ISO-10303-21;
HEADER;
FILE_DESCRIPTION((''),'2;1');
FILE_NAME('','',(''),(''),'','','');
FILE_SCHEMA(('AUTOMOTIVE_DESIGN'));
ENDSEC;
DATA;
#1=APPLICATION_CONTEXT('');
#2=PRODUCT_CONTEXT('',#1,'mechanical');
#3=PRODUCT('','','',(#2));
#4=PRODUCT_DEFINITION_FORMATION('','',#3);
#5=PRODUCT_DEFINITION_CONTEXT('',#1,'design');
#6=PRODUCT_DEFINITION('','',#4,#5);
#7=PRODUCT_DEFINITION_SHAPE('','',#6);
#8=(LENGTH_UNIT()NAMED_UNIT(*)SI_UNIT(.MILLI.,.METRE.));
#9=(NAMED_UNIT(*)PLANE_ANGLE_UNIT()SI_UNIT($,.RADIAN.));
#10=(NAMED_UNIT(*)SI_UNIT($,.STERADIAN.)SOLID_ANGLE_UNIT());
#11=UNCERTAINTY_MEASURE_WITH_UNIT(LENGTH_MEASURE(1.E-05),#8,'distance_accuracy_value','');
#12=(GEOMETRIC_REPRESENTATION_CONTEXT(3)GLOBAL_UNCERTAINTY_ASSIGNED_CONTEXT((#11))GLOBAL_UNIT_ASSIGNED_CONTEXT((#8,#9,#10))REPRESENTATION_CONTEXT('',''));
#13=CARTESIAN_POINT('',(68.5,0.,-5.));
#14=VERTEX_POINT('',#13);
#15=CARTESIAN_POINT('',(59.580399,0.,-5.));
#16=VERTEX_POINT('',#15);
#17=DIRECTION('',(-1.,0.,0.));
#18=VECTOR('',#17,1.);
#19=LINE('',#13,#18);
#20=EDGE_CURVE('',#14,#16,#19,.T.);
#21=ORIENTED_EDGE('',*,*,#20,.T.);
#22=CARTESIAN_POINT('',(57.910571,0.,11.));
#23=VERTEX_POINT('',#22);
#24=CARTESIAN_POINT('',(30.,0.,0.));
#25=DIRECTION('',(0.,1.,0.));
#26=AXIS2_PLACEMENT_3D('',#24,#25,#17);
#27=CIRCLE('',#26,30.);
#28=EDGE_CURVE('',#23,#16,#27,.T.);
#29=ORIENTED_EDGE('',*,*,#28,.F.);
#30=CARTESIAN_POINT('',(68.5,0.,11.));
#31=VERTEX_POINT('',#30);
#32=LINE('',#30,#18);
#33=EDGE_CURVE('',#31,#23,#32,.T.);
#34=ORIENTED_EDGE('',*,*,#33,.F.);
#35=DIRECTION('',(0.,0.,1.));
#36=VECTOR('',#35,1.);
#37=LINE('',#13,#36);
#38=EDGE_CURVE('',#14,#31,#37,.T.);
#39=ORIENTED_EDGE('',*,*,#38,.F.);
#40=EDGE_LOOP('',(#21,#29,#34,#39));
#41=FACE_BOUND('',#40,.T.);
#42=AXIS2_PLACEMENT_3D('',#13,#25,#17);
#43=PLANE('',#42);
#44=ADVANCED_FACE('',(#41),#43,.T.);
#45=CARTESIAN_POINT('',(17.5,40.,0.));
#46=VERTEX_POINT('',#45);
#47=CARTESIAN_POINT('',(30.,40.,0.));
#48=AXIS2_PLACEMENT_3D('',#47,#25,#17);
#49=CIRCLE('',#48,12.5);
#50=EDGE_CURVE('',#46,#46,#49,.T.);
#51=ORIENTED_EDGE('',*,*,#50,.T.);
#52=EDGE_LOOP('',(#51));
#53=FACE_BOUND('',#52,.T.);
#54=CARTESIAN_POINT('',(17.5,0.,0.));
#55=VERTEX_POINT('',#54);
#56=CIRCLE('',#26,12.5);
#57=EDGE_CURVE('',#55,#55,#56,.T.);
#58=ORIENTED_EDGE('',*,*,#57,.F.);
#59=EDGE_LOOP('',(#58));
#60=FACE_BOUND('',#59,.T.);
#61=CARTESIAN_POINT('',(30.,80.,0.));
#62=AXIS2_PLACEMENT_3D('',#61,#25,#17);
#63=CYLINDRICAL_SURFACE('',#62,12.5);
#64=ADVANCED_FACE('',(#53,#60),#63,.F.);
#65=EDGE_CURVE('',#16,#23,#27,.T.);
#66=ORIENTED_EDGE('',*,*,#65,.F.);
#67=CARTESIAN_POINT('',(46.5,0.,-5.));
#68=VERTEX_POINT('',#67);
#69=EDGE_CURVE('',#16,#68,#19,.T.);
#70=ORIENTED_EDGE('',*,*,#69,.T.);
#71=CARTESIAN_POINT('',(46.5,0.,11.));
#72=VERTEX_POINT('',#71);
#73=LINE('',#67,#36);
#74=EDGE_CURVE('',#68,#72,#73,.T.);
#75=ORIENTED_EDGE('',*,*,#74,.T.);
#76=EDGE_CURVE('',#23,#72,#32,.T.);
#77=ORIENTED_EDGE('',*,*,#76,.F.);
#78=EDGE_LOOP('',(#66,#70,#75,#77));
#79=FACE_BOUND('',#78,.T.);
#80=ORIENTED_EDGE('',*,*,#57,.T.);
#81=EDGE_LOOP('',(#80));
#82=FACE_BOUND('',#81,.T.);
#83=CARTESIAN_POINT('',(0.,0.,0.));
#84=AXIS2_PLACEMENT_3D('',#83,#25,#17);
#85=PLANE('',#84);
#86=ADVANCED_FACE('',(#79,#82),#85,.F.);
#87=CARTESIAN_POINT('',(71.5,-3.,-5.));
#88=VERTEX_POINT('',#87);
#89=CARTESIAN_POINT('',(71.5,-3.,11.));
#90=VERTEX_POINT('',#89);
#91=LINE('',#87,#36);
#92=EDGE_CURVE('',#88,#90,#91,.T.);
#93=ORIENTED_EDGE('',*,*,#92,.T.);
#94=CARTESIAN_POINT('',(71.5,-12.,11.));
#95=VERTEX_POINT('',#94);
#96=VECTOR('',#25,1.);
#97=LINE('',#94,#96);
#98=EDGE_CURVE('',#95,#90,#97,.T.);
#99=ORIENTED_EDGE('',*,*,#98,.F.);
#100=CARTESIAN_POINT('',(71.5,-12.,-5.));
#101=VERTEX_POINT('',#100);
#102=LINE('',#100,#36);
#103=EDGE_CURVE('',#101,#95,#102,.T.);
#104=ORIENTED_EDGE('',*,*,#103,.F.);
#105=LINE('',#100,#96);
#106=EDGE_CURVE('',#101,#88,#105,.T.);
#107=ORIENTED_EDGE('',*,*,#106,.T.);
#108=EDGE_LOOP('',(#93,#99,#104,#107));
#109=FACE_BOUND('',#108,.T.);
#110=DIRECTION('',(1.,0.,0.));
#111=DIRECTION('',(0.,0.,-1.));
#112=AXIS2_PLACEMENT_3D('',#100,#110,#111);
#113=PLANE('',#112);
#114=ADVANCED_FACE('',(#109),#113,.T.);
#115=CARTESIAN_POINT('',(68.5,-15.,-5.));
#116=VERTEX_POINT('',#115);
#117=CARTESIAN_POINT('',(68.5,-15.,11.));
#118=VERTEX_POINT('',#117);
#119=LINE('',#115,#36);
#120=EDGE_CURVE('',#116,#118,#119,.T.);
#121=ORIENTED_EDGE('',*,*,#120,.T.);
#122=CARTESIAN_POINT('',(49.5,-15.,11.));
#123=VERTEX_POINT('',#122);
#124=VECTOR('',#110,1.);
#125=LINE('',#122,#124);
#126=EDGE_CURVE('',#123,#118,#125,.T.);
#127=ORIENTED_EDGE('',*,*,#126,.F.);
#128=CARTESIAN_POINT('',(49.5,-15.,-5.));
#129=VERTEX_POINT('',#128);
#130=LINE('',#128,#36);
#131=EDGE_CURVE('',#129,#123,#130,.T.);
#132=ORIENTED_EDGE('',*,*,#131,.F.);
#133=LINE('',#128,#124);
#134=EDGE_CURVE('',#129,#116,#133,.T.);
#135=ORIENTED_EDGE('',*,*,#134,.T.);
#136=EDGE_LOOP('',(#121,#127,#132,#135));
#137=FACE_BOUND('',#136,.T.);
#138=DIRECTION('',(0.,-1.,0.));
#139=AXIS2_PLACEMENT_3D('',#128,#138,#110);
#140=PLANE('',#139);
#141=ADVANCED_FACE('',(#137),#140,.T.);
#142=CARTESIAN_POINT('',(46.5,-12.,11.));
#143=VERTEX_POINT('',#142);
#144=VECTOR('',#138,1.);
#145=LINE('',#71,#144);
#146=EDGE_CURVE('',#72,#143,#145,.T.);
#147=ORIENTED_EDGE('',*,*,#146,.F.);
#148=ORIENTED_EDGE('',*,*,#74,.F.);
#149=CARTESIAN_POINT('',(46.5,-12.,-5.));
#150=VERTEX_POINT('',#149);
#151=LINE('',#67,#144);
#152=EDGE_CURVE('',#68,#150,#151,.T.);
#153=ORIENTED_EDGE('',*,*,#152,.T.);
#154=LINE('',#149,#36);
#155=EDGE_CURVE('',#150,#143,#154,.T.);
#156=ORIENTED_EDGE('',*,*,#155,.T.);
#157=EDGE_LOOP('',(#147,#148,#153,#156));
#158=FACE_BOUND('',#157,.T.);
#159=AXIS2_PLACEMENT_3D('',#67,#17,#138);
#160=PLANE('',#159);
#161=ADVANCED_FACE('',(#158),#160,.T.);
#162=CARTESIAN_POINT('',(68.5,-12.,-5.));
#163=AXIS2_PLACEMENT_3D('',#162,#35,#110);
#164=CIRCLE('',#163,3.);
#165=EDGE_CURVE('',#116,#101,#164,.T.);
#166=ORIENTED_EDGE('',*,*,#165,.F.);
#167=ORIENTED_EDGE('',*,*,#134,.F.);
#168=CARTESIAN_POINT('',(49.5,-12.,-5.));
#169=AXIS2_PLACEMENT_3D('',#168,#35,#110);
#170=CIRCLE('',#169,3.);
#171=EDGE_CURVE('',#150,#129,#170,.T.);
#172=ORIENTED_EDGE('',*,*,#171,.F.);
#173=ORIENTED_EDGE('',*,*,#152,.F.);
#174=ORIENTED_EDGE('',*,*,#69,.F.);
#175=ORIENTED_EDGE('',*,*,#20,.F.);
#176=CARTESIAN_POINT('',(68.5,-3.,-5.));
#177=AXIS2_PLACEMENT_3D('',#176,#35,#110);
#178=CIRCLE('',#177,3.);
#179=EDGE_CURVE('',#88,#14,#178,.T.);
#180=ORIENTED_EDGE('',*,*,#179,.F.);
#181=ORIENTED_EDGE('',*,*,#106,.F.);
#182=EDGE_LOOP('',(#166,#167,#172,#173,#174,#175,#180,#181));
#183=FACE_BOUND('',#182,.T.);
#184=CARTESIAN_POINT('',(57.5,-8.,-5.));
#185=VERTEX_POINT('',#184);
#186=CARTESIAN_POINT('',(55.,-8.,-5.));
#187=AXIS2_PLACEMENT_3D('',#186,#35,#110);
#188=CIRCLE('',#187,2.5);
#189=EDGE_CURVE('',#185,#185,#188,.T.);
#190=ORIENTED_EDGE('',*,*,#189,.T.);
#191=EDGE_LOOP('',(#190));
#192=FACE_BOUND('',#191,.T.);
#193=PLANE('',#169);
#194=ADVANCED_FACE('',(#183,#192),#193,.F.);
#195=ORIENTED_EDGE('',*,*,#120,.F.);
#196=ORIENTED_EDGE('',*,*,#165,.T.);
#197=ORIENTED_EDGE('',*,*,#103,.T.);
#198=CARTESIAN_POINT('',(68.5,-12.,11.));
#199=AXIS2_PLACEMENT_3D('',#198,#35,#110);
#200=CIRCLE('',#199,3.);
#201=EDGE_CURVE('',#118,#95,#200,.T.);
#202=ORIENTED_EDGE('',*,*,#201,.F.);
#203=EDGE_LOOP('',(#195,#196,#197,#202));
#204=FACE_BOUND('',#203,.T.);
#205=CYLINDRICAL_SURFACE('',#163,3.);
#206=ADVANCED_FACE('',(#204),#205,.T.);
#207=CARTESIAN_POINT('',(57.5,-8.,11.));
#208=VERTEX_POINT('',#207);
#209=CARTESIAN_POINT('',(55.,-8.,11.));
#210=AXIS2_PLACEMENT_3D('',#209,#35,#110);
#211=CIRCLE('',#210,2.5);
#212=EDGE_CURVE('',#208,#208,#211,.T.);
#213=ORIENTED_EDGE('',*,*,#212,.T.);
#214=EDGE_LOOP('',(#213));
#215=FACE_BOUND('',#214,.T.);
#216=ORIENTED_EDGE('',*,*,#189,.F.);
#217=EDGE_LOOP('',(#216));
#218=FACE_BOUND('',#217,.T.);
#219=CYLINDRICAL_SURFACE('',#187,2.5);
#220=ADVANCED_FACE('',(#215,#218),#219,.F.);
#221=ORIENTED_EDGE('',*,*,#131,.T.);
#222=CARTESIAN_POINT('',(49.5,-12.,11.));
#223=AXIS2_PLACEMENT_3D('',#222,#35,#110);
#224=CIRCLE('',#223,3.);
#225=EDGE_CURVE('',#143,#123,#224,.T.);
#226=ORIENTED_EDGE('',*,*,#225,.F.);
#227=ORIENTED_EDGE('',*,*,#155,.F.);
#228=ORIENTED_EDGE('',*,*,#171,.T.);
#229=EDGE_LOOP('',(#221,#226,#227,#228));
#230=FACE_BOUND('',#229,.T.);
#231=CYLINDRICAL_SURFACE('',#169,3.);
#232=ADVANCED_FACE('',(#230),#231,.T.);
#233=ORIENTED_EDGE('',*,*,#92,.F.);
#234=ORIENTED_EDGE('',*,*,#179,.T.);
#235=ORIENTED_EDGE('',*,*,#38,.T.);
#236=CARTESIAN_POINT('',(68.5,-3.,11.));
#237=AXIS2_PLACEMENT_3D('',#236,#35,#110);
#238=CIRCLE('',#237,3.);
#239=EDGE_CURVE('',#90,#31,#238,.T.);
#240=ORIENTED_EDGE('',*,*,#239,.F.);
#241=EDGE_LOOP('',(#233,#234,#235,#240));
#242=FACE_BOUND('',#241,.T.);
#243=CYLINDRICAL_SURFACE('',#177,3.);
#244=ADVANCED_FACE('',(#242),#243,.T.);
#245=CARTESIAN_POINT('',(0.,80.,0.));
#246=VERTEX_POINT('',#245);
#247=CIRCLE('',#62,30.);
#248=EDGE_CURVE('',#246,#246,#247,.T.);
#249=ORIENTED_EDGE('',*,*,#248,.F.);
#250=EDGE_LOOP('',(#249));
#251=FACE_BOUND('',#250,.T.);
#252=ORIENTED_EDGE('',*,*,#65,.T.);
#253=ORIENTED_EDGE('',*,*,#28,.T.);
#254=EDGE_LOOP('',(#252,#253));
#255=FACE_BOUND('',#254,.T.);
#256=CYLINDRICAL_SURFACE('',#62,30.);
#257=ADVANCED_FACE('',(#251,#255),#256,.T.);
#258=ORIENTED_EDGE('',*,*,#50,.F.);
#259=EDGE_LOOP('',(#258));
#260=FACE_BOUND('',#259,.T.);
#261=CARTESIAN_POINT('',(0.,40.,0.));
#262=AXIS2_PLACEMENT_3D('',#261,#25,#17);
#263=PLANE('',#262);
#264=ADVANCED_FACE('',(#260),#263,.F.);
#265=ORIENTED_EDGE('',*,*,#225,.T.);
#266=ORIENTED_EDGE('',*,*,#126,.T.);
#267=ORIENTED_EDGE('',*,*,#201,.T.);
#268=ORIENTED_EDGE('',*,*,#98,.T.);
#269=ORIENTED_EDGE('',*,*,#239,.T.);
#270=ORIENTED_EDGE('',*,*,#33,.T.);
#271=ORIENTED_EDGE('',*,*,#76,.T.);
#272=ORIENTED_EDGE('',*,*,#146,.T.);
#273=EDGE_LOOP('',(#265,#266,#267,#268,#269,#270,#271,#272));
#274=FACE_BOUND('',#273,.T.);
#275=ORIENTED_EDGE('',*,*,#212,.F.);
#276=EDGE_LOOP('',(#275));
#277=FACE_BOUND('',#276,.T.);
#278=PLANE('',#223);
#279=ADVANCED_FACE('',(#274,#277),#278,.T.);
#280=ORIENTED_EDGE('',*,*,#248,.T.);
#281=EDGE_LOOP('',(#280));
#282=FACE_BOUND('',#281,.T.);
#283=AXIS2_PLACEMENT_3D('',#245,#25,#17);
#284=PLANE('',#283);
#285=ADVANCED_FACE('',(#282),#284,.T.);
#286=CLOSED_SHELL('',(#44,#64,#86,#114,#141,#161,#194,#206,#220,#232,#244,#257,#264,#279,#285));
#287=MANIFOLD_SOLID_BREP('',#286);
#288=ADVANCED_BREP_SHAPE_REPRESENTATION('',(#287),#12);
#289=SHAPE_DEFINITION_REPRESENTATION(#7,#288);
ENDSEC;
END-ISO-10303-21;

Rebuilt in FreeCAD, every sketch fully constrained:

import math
import FreeCAD as App
import Part
import Sketcher
Q = App.Units.Quantity


def add_polygon(sketch, points):
    """Adds a closed chain of lines whose ends are joined by coincident constraints."""
    first, n = sketch.GeometryCount, len(points)
    for a, b in zip(points, points[1:] + points[:1]):
        sketch.addGeometry(Part.LineSegment(App.Vector(*a, 0), App.Vector(*b, 0)), False)
    for i in range(n):
        sketch.addConstraint(Sketcher.Constraint("Coincident", first + i, 2, first + (i + 1) % n, 1))

doc = App.newDocument("Part")
body = doc.addObject("PartDesign::Body", "Body")

# Sketch on XY plane
sketch1 = doc.addObject("Sketcher::SketchObject", "Sketch")
body.addObject(sketch1)
sketch1.AttachmentSupport = (doc.XY_Plane, [""])
sketch1.MapMode = "FlatFace"
add_polygon(sketch1, [(60, 80), (30, 80), (30, 40), (42.5, 40), (42.5, 0), (60, 0)])  # lines 0-5
sketch1.addGeometry(Part.LineSegment(App.Vector(30, 80, 0), App.Vector(30, 0, 0)), True)  # axis
sketch1.addConstraint([
    Sketcher.Constraint("Horizontal", 0),
    Sketcher.Constraint("Vertical", 1),
    Sketcher.Constraint("Horizontal", 2),
    Sketcher.Constraint("Vertical", 3),
    Sketcher.Constraint("Horizontal", 4),
    Sketcher.Constraint("Vertical", 5),
    Sketcher.Constraint("Vertical", 6),
    Sketcher.Constraint("Coincident", 6, 1, 0, 2),
    Sketcher.Constraint("PointOnObject", 3, 2, -1),
    Sketcher.Constraint("PointOnObject", 6, 2, -1),
    Sketcher.Constraint("Equal", 1, 3),
    Sketcher.Constraint("DistanceX", 0, 2, 0, 1, Q("30 mm")),
    Sketcher.Constraint("DistanceY", 1, 2, 1, 1, Q("40 mm")),
    Sketcher.Constraint("DistanceX", 2, 1, 2, 2, Q("12.5 mm")),
    Sketcher.Constraint("DistanceX", -1, 1, 0, 2, Q("30 mm")),
])
revolution = doc.addObject("PartDesign::Revolution", "Revolution")
body.addObject(revolution)
revolution.Profile = sketch1
revolution.ReferenceAxis = (sketch1, ["Axis0"])
revolution.Angle = 360

# Sketch on XY plane
sketch2 = doc.addObject("Sketcher::SketchObject", "Sketch001")
body.addObject(sketch2)
sketch2.AttachmentSupport = (doc.XY_Plane, [""])
sketch2.MapMode = "FlatFace"
sketch2.addGeometry([
    Part.LineSegment(App.Vector(46.5, 0, 0), App.Vector(46.5, -12, 0)),  # 0
    Part.ArcOfCircle(Part.Circle(App.Vector(49.5, -12, 0), App.Vector(0, 0, 1), 3), math.radians(180), math.radians(270)),  # 1
    Part.LineSegment(App.Vector(49.5, -15, 0), App.Vector(68.5, -15, 0)),  # 2
    Part.ArcOfCircle(Part.Circle(App.Vector(68.5, -12, 0), App.Vector(0, 0, 1), 3), math.radians(-90), math.radians(0)),  # 3
    Part.LineSegment(App.Vector(71.5, -12, 0), App.Vector(71.5, -3, 0)),  # 4
    Part.ArcOfCircle(Part.Circle(App.Vector(68.5, -3, 0), App.Vector(0, 0, 1), 3), math.radians(0), math.radians(90)),  # 5
    Part.LineSegment(App.Vector(68.5, 0, 0), App.Vector(46.5, 0, 0)),  # 6
    Part.Circle(App.Vector(55, -8, 0), App.Vector(0, 0, 1), 2.5),  # 7
], False)
sketch2.addConstraint([
    Sketcher.Constraint("Tangent", 0, 2, 1, 1),
    Sketcher.Constraint("Tangent", 1, 2, 2, 1),
    Sketcher.Constraint("Tangent", 2, 2, 3, 1),
    Sketcher.Constraint("Tangent", 3, 2, 4, 1),
    Sketcher.Constraint("Tangent", 4, 2, 5, 1),
    Sketcher.Constraint("Tangent", 5, 2, 6, 1),
    Sketcher.Constraint("Coincident", 6, 2, 0, 1),
    Sketcher.Constraint("Vertical", 0),
    Sketcher.Constraint("Horizontal", 2),
    Sketcher.Constraint("Vertical", 4),
    Sketcher.Constraint("Horizontal", 6),
    Sketcher.Constraint("Equal", 1, 3),
    Sketcher.Constraint("Equal", 3, 5),
    Sketcher.Constraint("PointOnObject", 5, 2, -1),
    Sketcher.Constraint("Diameter", 7, Q("5 mm")),
    Sketcher.Constraint("Radius", 1, Q("3 mm")),
    Sketcher.Constraint("DistanceX", 2, 1, 2, 2, Q("19 mm")),
    Sketcher.Constraint("DistanceY", 0, 2, 0, 1, Q("12 mm")),
    Sketcher.Constraint("DistanceX", -1, 1, 7, 3, Q("55 mm")),
    Sketcher.Constraint("DistanceY", 7, 3, -1, 1, Q("8 mm")),
    Sketcher.Constraint("DistanceX", -1, 1, 1, 3, Q("49.5 mm")),
])
pad1 = doc.addObject("PartDesign::Pad", "Pad")
body.addObject(pad1)
pad1.Profile = sketch2
pad1.Type = "TwoLengths"
pad1.Length = 11
pad1.Length2 = 5

doc.recompute()
